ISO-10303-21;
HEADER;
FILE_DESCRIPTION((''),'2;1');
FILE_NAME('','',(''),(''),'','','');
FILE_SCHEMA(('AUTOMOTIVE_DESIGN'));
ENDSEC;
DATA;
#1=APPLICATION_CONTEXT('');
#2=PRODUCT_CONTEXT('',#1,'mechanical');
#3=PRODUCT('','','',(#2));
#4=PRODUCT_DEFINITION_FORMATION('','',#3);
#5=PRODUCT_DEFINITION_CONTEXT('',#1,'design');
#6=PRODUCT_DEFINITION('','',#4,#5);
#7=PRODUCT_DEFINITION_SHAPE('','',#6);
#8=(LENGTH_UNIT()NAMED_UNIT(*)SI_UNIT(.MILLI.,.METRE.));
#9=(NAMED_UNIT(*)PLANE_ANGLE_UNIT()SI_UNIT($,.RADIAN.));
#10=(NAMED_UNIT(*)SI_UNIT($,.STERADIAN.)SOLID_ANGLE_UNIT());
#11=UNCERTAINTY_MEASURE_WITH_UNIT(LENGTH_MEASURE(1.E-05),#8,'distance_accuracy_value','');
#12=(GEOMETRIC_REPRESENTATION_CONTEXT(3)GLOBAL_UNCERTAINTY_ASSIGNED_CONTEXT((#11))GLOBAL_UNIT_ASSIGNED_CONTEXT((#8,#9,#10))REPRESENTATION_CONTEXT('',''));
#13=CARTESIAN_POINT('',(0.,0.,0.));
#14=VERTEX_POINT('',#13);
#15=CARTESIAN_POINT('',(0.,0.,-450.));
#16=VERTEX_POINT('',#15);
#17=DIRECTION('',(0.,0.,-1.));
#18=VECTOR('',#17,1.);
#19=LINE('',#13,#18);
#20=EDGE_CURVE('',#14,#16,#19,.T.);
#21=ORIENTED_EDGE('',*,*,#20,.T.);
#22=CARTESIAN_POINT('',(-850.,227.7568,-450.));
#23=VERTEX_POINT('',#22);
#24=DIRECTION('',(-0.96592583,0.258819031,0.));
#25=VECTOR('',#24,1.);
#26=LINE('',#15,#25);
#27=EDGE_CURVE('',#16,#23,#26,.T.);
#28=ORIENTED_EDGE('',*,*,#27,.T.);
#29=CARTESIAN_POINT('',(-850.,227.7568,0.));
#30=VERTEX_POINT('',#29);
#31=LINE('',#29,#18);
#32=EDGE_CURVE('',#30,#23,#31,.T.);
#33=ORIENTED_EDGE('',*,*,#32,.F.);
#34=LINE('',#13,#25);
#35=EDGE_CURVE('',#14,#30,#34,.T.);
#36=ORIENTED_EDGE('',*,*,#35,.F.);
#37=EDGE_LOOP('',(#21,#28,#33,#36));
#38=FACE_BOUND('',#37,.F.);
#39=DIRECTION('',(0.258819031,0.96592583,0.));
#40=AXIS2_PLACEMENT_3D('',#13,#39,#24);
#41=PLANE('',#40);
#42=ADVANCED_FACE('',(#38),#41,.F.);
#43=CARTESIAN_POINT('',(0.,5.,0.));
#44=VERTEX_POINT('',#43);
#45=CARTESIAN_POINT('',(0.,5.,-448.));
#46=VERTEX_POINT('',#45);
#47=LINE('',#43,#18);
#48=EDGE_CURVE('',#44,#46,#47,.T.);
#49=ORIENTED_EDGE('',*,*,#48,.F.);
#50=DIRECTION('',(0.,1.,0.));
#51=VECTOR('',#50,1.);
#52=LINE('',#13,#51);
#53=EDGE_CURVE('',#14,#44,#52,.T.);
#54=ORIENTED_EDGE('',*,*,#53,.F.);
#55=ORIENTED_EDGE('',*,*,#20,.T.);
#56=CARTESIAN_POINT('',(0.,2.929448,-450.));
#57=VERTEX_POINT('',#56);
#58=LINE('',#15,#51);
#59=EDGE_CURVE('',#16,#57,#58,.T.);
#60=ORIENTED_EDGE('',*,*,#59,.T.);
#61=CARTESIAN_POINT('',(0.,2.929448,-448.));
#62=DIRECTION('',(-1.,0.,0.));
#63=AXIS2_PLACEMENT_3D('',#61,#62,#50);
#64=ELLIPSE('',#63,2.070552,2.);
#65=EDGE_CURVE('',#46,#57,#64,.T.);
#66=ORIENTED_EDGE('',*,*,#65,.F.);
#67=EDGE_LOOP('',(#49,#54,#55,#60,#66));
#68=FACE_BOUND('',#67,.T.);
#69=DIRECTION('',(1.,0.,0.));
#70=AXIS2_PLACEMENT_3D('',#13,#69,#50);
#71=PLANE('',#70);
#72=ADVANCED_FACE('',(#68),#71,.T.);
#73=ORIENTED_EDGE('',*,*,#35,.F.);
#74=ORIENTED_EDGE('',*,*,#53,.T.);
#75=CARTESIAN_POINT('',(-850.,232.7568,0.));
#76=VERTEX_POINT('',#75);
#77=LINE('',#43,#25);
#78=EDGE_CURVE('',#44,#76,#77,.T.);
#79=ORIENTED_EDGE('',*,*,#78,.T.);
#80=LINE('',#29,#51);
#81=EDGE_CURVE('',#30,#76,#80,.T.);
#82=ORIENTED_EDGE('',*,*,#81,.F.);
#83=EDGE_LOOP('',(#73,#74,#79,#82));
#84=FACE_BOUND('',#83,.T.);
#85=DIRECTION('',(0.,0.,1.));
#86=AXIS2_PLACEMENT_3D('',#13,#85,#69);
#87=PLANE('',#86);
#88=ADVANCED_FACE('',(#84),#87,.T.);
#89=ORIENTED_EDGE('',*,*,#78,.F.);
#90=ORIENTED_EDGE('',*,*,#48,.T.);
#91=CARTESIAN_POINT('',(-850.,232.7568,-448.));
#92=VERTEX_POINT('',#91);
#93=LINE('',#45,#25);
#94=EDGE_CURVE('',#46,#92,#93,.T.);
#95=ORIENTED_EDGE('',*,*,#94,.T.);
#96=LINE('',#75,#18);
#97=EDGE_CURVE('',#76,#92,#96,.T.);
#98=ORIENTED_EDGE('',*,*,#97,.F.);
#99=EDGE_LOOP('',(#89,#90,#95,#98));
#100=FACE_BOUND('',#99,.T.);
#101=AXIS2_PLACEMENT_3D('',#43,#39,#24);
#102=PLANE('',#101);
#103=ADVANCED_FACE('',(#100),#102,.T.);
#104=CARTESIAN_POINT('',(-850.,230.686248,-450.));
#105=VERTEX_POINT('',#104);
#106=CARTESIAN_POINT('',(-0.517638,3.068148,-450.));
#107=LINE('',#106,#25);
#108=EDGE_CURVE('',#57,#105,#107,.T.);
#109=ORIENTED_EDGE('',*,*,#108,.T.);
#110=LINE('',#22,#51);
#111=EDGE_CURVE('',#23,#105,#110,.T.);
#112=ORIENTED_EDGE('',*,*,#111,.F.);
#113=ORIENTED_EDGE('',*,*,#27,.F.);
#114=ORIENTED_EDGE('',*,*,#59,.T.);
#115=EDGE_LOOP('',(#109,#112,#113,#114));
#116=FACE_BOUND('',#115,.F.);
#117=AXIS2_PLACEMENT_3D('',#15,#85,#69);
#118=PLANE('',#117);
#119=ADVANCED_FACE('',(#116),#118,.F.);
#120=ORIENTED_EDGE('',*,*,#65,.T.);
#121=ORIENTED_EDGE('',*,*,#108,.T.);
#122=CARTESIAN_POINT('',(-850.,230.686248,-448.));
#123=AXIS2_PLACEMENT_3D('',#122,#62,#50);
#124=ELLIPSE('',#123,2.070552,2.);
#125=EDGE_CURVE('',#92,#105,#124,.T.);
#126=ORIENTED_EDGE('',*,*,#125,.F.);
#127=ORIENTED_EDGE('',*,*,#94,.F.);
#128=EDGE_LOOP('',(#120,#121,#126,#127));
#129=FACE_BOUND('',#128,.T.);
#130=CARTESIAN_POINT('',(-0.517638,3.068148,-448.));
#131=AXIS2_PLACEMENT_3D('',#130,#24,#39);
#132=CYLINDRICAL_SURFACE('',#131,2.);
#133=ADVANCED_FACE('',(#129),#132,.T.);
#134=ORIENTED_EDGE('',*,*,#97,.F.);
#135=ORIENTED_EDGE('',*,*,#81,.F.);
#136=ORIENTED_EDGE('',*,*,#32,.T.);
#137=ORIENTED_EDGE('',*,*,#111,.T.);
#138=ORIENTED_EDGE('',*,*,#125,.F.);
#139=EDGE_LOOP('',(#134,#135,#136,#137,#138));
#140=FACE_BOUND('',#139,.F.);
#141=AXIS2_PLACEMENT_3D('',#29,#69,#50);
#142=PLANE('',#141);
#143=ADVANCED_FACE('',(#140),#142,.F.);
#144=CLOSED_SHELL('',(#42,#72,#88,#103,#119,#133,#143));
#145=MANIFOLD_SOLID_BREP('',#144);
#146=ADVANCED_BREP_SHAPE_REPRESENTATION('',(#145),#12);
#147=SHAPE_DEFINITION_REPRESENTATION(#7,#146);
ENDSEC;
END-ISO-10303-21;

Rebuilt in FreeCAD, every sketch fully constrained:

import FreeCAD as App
import Part
import Sketcher

V = App.Vector
Q = App.Units.Quantity


def edges_at(feature, points):
    """Names of the edges that pass closest to the given points."""
    edges = feature.Shape.Edges
    near = lambda p: min(range(len(edges)), key=lambda i: edges[i].distToShape(Part.Vertex(*p))[0])
    return sorted({f"Edge{near(p) + 1}" for p in points})

doc = App.newDocument("Part")
body = doc.addObject("PartDesign::Body", "Body")

sketch1 = body.newObject("Sketcher::SketchObject", "Sketch")
sketch1.AttachmentSupport = (doc.getObject("XY_Plane"), [""])
sketch1.MapMode = "FlatFace"
sketch1.addGeometry([
    Part.LineSegment(V(-850, 228, 0), V(0, 0, 0)),
    Part.LineSegment(V(0, 0, 0), V(0, 5, 0)),
    Part.LineSegment(V(0, 5, 0), V(-850, 233, 0)),
    Part.LineSegment(V(-850, 233, 0), V(-850, 228, 0)),
], False)
sketch1.addConstraint([
    Sketcher.Constraint("Coincident", 0, 2, 1, 1),
    Sketcher.Constraint("Coincident", 1, 2, 2, 1),
    Sketcher.Constraint("Coincident", 2, 2, 3, 1),
    Sketcher.Constraint("Coincident", 3, 2, 0, 1),
    Sketcher.Constraint("Vertical", 1),
    Sketcher.Constraint("Vertical", 3),
    Sketcher.Constraint("Coincident", 0, 2, -1, 1),
    Sketcher.Constraint("Parallel", 0, 2),
    Sketcher.Constraint("DistanceY", 1, 1, 1, 2, Q("5 mm")),
    Sketcher.Constraint("Angle", 0, Q("-15 deg")),
    Sketcher.Constraint("DistanceX", 2, 2, -1, 1, Q("850 mm")),
])
pad1 = body.newObject("PartDesign::Pad", "Pad")
pad1.Profile = sketch1
pad1.Length = 450
pad1.Reversed = True
doc.recompute()

fillet = body.newObject("PartDesign::Fillet", "Fillet")
fillet.Base = (pad1, edges_at(pad1, [(-425, 118.878, -450)]))
fillet.Radius = 2

doc.recompute()
